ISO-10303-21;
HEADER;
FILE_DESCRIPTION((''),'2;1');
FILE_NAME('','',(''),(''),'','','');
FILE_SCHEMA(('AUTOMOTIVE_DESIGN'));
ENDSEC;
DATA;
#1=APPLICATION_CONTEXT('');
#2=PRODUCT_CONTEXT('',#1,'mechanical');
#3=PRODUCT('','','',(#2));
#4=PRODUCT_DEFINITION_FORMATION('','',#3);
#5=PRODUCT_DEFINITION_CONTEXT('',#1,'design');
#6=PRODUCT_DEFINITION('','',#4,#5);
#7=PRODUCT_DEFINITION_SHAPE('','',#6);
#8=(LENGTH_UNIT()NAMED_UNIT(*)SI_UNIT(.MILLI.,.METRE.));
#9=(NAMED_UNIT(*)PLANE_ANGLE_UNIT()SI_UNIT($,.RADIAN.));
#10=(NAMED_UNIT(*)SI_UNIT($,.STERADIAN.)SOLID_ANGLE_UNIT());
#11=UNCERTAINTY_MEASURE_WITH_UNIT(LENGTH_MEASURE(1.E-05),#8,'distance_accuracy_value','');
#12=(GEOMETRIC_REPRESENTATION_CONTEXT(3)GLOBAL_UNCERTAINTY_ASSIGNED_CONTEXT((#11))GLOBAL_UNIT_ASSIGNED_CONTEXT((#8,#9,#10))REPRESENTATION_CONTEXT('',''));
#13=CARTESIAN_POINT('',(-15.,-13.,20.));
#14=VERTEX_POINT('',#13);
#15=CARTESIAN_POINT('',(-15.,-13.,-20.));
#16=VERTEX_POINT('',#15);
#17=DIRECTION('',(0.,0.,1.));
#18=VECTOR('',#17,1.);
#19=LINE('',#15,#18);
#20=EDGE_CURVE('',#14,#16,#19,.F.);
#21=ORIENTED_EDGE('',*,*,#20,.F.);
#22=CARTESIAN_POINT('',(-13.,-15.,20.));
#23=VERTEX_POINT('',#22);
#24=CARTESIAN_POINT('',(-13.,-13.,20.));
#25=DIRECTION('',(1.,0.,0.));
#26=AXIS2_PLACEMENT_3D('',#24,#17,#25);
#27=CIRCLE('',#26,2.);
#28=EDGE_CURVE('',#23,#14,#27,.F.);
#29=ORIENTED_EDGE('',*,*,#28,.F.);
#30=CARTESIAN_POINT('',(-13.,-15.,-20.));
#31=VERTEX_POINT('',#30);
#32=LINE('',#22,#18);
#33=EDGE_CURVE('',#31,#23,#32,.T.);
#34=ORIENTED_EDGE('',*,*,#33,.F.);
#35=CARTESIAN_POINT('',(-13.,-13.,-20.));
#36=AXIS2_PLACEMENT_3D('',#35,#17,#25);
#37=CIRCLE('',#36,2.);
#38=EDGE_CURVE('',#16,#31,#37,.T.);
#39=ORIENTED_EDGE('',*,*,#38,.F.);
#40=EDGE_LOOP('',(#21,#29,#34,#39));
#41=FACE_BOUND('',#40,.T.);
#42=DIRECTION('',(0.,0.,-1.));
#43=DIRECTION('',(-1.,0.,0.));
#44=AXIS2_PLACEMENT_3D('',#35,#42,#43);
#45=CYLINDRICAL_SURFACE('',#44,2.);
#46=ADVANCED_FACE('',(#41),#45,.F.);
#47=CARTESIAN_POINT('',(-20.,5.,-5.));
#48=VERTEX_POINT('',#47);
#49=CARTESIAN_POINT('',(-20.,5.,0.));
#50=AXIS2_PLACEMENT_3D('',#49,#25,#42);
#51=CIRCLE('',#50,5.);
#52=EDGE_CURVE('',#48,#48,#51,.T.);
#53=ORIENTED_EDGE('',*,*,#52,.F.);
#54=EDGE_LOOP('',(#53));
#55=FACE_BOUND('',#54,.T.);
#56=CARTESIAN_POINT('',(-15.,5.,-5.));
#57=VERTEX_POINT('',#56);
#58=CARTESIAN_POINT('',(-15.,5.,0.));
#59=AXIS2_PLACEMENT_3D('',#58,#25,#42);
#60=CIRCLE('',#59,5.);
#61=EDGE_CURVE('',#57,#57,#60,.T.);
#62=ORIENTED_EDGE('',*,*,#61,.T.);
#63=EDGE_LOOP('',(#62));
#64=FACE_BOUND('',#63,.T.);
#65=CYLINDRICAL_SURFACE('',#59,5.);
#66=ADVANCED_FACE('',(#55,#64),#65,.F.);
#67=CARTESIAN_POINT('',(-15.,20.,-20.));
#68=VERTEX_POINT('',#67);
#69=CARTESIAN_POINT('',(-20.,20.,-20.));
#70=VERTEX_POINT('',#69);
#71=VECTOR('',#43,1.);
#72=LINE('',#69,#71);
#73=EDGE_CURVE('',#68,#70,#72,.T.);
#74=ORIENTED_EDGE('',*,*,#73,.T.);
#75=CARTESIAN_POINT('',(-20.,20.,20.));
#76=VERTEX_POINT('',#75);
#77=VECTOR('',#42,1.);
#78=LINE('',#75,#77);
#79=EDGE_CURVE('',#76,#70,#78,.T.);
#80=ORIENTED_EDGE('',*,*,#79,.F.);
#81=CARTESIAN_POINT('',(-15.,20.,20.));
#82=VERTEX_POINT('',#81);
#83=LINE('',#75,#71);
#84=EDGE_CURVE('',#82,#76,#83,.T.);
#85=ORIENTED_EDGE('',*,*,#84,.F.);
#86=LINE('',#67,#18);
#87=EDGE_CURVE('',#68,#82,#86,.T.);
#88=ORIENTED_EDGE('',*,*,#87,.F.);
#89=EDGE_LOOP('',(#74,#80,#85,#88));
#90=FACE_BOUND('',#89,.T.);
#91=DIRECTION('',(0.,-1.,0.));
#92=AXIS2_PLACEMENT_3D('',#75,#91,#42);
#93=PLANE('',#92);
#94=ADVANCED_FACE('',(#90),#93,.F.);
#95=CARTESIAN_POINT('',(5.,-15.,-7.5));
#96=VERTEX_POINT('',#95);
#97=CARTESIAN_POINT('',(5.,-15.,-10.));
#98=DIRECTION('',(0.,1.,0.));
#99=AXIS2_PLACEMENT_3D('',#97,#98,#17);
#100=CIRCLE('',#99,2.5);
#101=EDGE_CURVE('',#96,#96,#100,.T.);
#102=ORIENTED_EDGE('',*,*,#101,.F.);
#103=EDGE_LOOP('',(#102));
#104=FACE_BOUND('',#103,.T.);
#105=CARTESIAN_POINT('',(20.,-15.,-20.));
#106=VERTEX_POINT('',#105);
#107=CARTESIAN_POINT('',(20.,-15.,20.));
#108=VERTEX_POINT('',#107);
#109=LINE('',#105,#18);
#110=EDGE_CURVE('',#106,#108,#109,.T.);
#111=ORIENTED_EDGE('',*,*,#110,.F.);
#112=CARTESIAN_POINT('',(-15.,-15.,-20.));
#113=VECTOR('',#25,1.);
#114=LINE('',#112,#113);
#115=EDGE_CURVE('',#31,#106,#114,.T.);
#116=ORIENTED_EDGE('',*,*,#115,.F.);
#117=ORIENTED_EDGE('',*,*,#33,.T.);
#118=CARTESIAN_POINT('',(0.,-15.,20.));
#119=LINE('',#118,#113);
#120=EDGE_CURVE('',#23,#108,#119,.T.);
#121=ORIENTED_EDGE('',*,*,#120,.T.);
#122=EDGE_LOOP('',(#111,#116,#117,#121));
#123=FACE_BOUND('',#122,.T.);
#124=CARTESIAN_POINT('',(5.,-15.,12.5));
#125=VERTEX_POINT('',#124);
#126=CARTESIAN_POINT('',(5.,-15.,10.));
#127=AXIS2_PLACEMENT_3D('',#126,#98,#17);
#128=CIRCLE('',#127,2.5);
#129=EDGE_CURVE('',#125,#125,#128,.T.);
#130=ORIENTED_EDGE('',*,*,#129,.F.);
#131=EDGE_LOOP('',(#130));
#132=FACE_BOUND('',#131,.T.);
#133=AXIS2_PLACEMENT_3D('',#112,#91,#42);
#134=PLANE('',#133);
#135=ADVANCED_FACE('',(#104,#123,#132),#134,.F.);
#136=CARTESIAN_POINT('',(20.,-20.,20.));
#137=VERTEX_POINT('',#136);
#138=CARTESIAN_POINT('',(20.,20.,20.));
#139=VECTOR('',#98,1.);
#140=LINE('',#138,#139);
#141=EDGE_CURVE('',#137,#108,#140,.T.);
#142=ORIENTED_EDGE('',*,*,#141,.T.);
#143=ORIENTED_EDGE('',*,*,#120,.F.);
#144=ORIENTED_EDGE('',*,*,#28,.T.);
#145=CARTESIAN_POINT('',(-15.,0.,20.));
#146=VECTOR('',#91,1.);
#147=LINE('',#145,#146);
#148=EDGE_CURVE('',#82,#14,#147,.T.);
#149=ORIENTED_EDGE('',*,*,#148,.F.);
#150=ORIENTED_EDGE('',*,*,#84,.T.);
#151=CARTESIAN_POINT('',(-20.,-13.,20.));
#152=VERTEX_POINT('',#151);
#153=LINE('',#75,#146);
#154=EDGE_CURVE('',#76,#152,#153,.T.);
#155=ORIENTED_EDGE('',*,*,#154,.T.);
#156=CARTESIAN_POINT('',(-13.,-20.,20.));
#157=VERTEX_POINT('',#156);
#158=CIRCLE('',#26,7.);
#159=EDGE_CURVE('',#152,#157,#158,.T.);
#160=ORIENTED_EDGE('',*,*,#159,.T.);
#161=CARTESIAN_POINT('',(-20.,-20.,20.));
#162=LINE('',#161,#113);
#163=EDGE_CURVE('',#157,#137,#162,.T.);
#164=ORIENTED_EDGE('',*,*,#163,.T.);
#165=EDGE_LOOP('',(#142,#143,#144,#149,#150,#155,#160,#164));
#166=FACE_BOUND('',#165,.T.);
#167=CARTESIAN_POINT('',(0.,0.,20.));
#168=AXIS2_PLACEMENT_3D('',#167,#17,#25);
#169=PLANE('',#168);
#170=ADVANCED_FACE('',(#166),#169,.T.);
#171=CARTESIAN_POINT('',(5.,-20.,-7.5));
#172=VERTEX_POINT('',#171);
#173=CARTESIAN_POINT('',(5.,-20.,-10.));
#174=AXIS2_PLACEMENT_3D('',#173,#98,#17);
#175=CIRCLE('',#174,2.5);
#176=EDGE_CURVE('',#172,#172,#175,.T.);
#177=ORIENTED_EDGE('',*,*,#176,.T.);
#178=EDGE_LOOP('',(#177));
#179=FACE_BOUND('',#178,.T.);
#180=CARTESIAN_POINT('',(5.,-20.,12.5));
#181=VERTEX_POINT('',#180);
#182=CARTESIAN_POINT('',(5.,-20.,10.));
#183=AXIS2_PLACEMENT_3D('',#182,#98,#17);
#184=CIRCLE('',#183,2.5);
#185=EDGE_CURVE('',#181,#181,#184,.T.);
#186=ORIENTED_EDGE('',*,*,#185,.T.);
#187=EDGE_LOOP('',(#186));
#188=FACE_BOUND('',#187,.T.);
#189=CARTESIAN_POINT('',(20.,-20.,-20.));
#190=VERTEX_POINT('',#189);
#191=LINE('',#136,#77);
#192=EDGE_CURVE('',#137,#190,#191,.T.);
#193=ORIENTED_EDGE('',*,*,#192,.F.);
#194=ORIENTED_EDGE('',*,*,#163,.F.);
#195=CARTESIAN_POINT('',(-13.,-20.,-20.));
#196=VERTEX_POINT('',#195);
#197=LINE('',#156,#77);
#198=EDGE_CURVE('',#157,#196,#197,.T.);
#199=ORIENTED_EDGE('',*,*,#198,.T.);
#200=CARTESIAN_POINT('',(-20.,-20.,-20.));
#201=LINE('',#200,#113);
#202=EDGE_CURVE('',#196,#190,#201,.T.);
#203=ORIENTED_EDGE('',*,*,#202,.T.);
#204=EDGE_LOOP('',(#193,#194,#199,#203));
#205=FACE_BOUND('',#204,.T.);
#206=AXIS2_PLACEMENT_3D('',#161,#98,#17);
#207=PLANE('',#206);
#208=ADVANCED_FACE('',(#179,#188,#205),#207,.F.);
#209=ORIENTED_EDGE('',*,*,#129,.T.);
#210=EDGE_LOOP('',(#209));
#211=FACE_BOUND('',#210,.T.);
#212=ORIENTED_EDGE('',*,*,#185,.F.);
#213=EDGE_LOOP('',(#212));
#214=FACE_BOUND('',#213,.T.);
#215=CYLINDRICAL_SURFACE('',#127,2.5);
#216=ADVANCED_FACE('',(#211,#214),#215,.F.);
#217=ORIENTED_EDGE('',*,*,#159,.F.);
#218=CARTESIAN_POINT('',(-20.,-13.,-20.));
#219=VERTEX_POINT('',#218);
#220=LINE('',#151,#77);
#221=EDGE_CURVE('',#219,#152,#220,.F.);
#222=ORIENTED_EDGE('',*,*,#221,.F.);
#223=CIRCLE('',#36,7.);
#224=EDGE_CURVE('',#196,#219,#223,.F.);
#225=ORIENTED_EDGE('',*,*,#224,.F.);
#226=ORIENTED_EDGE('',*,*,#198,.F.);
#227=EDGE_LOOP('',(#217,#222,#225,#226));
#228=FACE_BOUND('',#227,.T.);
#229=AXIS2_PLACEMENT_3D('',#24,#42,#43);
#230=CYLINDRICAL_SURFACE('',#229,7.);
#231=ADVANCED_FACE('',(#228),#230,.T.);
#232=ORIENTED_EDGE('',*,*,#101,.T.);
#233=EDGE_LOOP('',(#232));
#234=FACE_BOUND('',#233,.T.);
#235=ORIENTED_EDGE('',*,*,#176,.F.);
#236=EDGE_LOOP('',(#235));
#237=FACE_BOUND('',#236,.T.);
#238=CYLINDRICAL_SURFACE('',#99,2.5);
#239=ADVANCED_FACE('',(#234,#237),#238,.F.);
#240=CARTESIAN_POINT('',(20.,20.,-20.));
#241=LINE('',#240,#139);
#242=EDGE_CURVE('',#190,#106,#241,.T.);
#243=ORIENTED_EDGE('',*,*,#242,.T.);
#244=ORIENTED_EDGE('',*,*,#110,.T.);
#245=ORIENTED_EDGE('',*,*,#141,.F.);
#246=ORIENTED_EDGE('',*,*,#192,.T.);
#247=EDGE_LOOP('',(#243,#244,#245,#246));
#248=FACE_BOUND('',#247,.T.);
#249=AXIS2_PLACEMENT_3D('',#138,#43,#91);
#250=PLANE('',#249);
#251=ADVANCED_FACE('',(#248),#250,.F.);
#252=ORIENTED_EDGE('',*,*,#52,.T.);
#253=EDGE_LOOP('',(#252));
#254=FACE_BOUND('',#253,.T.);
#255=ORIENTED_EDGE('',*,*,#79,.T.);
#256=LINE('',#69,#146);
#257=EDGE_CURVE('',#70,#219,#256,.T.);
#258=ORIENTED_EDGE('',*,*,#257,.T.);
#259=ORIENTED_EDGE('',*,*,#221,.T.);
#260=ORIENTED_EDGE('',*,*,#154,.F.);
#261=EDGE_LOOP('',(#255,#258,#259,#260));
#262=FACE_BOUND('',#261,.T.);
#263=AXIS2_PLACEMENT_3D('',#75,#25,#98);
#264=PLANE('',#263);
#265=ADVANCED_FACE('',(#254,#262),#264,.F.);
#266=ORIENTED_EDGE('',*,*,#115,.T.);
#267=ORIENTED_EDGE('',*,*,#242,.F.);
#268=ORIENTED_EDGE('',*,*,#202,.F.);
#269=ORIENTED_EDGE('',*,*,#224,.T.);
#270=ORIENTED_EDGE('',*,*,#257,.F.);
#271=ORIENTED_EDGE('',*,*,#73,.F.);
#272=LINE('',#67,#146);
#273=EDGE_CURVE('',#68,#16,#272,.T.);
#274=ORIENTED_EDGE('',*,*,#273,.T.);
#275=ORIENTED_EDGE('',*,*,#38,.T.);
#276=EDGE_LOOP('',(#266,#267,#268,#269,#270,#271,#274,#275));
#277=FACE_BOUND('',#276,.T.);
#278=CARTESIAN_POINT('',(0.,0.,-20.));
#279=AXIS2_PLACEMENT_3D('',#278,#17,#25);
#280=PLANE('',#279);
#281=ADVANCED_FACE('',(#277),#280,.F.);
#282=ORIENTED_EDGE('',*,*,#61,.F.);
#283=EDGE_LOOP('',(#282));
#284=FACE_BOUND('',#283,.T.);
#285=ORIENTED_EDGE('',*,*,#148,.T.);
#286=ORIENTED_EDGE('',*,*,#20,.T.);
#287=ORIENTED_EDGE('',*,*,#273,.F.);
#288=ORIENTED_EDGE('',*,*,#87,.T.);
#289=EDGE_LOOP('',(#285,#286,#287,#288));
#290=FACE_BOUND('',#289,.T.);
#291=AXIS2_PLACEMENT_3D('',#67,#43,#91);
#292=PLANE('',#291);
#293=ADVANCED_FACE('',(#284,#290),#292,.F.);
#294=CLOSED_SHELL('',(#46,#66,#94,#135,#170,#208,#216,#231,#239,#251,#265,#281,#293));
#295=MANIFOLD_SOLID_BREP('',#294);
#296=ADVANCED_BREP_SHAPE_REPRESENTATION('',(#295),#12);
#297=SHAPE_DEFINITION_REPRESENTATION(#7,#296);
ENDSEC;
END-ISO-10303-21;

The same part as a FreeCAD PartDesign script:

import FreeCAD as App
import Part
import Sketcher
from FreeCAD import Vector
Q = App.Units.Quantity


def edges_at(feature, points):
    """Names of the edges that pass closest to the given points."""
    edges = feature.Shape.Edges
    near = lambda p: min(range(len(edges)), key=lambda i: edges[i].distToShape(Part.Vertex(*p))[0])
    return sorted({f"Edge{near(p) + 1}" for p in points})


def add_polygon(sketch, points):
    """Adds a closed chain of lines whose ends are joined by coincident constraints."""
    first, n = sketch.GeometryCount, len(points)
    for a, b in zip(points, points[1:] + points[:1]):
        sketch.addGeometry(Part.LineSegment(App.Vector(*a, 0), App.Vector(*b, 0)), False)
    for i in range(n):
        sketch.addConstraint(Sketcher.Constraint("Coincident", first + i, 2, first + (i + 1) % n, 1))

doc = App.newDocument("Part")
body = doc.addObject("PartDesign::Body", "Body")

sketch1 = body.newObject("Sketcher::SketchObject", "Sketch")
sketch1.AttachmentSupport = (doc.getObject("XY_Plane"), [""])
sketch1.MapMode = "FlatFace"
add_polygon(sketch1, [(-20, 20), (-20, -20), (20, -20), (20, 20)])
sketch1.addConstraint([
    Sketcher.Constraint("Vertical", 0),
    Sketcher.Constraint("Horizontal", 1),
    Sketcher.Constraint("Vertical", 2),
    Sketcher.Constraint("Horizontal", 3),
    Sketcher.Constraint("Symmetric", 0, 2, 2, 2, -1, 1),
    Sketcher.Constraint("Equal", 3, 0),
    Sketcher.Constraint("DistanceX", 1, 1, 1, 2, Q("40 mm")),
])
pad1 = body.newObject("PartDesign::Pad", "Pad")
pad1.Profile = sketch1
pad1.Length = 40
pad1.Midplane = True

sketch2 = body.newObject("Sketcher::SketchObject", "Sketch001")
sketch2.AttachmentSupport = (doc.getObject("XY_Plane"), [""])
sketch2.MapMode = "FlatFace"
sketch2.AttachmentOffset = App.Placement(Vector(0, 0, 20), App.Rotation())
add_polygon(sketch2, [(-15, 20), (-15, -15), (20, -15), (20, 20)])
sketch2.addConstraint([
    Sketcher.Constraint("Vertical", 0),
    Sketcher.Constraint("Horizontal", 1),
    Sketcher.Constraint("Vertical", 2),
    Sketcher.Constraint("Horizontal", 3),
    Sketcher.Constraint("Equal", 3, 0),
    Sketcher.Constraint("DistanceX", 1, 1, 1, 2, Q("35 mm")),
    Sketcher.Constraint("DistanceX", 0, 2, -1, 1, Q("15 mm")),
    Sketcher.Constraint("DistanceY", 0, 2, -1, 1, Q("15 mm")),
])
pocket1 = body.newObject("PartDesign::Pocket", "Pocket")
pocket1.Profile = sketch2
pocket1.Type = "ThroughAll"
pocket1.Midplane = True
doc.recompute()

fillet = body.newObject("PartDesign::Fillet", "Fillet")
fillet.Base = (pocket1, edges_at(pocket1, [(-15, -15, 0)]))
fillet.Radius = 2
doc.recompute()

fillet2 = body.newObject("PartDesign::Fillet", "Fillet001")
fillet2.Base = (fillet, edges_at(fillet, [(-20, -20, 0)]))
fillet2.Radius = 7

sketch3 = body.newObject("Sketcher::SketchObject", "Sketch002")
sketch3.AttachmentSupport = (doc.getObject("YZ_Plane"), [""])
sketch3.MapMode = "FlatFace"
sketch3.AttachmentOffset = App.Placement(Vector(0, 0, -15), App.Rotation())
sketch3.addGeometry(Part.Circle(Vector(5, 0, 0), Vector(0, 0, 1), 5), False)
sketch3.addConstraint([
    Sketcher.Constraint("PointOnObject", 0, 3, -1),
    Sketcher.Constraint("Diameter", 0, Q("10 mm")),
    Sketcher.Constraint("DistanceX", -1, 1, 0, 3, Q("5 mm")),
])
doc.recompute()
hole = body.newObject("PartDesign::Hole", "Hole")
hole.Profile = sketch3
hole.ThreadType = "None"
hole.Diameter = 10
hole.DepthType = "ThroughAll"

sketch4 = body.newObject("Sketcher::SketchObject", "Sketch003")
sketch4.AttachmentSupport = (doc.getObject("XZ_Plane"), [""])
sketch4.MapMode = "FlatFace"
sketch4.AttachmentOffset = App.Placement(Vector(0, 0, 15), App.Rotation())
sketch4.addGeometry(Part.Circle(Vector(5, 10, 0), Vector(0, 0, 1), 2.5), False)
sketch4.addConstraint([
    Sketcher.Constraint("Diameter", 0, Q("5 mm")),
    Sketcher.Constraint("DistanceX", -1, 1, 0, 3, Q("5 mm")),
    Sketcher.Constraint("DistanceY", -1, 1, 0, 3, Q("10 mm")),
])
doc.recompute()
hole2 = body.newObject("PartDesign::Hole", "Hole001")
hole2.Profile = sketch4
hole2.ThreadType = "None"
hole2.Diameter = 5
hole2.DepthType = "ThroughAll"
hole2.Reversed = True
doc.recompute()

mirrored = body.newObject("PartDesign::Mirrored", "Mirrored")
mirrored.Originals = [hole2]
mirrored.MirrorPlane = (doc.getObject("XY_Plane"), [""])
body.Tip = mirrored

doc.recompute()
